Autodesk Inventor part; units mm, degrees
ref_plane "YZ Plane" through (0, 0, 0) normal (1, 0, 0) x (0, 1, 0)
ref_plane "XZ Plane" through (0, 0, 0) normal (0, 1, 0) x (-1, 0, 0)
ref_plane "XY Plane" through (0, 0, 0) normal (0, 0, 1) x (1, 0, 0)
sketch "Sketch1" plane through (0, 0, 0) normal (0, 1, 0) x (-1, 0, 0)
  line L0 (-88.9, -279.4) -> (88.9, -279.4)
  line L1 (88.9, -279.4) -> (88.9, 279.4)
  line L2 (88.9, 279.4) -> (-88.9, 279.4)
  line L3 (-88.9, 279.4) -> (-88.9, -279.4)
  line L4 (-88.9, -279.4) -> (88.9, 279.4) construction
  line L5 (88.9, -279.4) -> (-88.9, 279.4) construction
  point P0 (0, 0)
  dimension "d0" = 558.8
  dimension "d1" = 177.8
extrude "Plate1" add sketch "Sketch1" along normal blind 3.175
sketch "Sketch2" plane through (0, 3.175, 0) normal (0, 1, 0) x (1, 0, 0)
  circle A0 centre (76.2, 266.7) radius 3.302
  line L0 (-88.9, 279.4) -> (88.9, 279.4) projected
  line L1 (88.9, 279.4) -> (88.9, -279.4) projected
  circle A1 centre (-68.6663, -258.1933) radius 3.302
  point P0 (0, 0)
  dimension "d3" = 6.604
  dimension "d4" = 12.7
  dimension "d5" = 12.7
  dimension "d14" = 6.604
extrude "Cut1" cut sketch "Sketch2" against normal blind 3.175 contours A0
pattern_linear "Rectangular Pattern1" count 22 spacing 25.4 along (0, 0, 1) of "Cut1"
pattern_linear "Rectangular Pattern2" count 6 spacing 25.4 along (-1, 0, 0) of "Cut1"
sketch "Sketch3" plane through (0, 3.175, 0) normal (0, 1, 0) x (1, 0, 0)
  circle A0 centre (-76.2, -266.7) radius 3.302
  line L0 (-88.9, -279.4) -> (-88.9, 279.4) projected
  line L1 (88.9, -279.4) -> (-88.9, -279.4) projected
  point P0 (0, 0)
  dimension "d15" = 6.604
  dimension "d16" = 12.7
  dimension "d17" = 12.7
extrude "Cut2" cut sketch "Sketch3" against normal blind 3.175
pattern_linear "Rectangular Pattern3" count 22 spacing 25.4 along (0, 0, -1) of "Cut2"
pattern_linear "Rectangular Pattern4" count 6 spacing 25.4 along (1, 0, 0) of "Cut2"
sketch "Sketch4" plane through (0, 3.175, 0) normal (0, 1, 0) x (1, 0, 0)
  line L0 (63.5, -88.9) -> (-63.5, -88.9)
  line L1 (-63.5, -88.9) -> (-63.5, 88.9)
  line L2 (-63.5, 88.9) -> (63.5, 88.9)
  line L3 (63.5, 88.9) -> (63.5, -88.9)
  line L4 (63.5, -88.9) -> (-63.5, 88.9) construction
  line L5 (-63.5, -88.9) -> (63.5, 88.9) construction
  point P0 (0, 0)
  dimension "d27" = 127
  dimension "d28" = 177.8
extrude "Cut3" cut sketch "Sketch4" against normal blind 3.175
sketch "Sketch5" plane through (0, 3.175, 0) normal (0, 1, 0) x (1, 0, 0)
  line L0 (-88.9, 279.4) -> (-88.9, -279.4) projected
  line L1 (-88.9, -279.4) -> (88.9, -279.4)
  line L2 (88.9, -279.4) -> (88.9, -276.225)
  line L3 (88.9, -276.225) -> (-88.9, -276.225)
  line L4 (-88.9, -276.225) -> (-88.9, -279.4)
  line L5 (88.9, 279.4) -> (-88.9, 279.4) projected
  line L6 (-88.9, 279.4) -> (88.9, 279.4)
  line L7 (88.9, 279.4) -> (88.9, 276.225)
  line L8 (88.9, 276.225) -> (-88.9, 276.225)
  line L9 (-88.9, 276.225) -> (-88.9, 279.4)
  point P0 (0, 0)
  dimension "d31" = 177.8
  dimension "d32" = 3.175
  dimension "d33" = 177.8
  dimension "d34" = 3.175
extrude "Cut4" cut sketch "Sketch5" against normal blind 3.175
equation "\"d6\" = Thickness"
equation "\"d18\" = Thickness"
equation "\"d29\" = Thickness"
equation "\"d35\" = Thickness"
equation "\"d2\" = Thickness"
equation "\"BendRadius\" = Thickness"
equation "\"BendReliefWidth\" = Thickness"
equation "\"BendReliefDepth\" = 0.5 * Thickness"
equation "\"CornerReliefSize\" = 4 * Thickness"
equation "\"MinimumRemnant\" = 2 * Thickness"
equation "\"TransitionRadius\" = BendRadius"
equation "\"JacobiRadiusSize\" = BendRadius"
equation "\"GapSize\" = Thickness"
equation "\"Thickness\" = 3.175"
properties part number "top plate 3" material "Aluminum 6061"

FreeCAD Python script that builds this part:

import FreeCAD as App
import Part
import Sketcher
from FreeCAD import Vector
Q = App.Units.Quantity


def add_polygon(sketch, points):
    """Adds a closed chain of lines whose ends are joined by coincident constraints."""
    first, n = sketch.GeometryCount, len(points)
    for a, b in zip(points, points[1:] + points[:1]):
        sketch.addGeometry(Part.LineSegment(App.Vector(*a, 0), App.Vector(*b, 0)), False)
    for i in range(n):
        sketch.addConstraint(Sketcher.Constraint("Coincident", first + i, 2, first + (i + 1) % n, 1))

doc = App.newDocument("Part")
body = doc.addObject("PartDesign::Body", "Body")

sketch1 = body.newObject("Sketcher::SketchObject", "Sketch")
sketch1.AttachmentSupport = (doc.getObject("XZ_Plane"), [""])
sketch1.MapMode = "FlatFace"
add_polygon(sketch1, [(89, 279), (89, -279), (-89, -279), (-89, 279)])
sketch1.addConstraint(Sketcher.Constraint("Vertical", 0))
sketch1.addConstraint(Sketcher.Constraint("Horizontal", 1))
sketch1.addConstraint(Sketcher.Constraint("Vertical", 2))
sketch1.addConstraint(Sketcher.Constraint("Horizontal", 3))
sketch1.addConstraint(Sketcher.Constraint("Symmetric", 0, 2, 2, 2, -1, 1))
sketch1.addConstraint(Sketcher.Constraint("DistanceX", 1, 2, 1, 1, Q("7 in")))
sketch1.addConstraint(Sketcher.Constraint("DistanceY", 0, 2, 0, 1, Q("22 in")))
pad1 = body.newObject("PartDesign::Pad", "Pad")
pad1.Profile = sketch1
pad1.Length = Q("0.125 in")
pad1.Reversed = True

sketch2 = body.newObject("Sketcher::SketchObject", "Sketch001")
sketch2.AttachmentSupport = (doc.getObject("XZ_Plane"), [""])
sketch2.MapMode = "FlatFace"
sketch2.AttachmentOffset = App.Placement(Vector(0, 0, -0.125 * 25.4), App.Rotation())
sketch2.addGeometry(Part.Circle(Vector(76.2, -266.7, 0), Vector(0, 0, 1), 3.3), False)
sketch2.addConstraint(Sketcher.Constraint("Diameter", 0, Q("0.26 in")))
sketch2.addConstraint(Sketcher.Constraint("DistanceX", -1, 1, 0, 3, Q("3 in")))
sketch2.addConstraint(Sketcher.Constraint("DistanceY", 0, 3, -1, 1, Q("10.5 in")))
pocket1 = body.newObject("PartDesign::Pocket", "Pocket")
pocket1.Profile = sketch2
pocket1.Length = Q("0.125 in")
pocket1.Reversed = True
doc.recompute()

linearpattern = body.newObject("PartDesign::LinearPattern", "LinearPattern")
linearpattern.Originals = [pocket1]
linearpattern.Direction = (doc.getObject("Z_Axis"), [""])
linearpattern.Mode = "offset"
linearpattern.Offset = Q("1 in")
linearpattern.Occurrences = 22
body.Tip = linearpattern
doc.recompute()

linearpattern2 = body.newObject("PartDesign::LinearPattern", "LinearPattern001")
linearpattern2.Originals = [pocket1]
linearpattern2.Direction = (doc.getObject("X_Axis"), [""])
linearpattern2.Mode = "offset"
linearpattern2.Offset = Q("1 in")
linearpattern2.Occurrences = 6
linearpattern2.Reversed = True
body.Tip = linearpattern2

sketch3 = body.newObject("Sketcher::SketchObject", "Sketch002")
sketch3.AttachmentSupport = (doc.getObject("XZ_Plane"), [""])
sketch3.MapMode = "FlatFace"
sketch3.AttachmentOffset = App.Placement(Vector(0, 0, -0.125 * 25.4), App.Rotation())
sketch3.addGeometry(Part.Circle(Vector(-76.2, 266.7, 0), Vector(0, 0, 1), 3.3), False)
sketch3.addConstraint(Sketcher.Constraint("Diameter", 0, Q("0.26 in")))
sketch3.addConstraint(Sketcher.Constraint("DistanceX", 0, 3, -1, 1, Q("3 in")))
sketch3.addConstraint(Sketcher.Constraint("DistanceY", -1, 1, 0, 3, Q("10.5 in")))
pocket2 = body.newObject("PartDesign::Pocket", "Pocket001")
pocket2.Profile = sketch3
pocket2.Length = Q("0.125 in")
pocket2.Reversed = True
doc.recompute()

linearpattern3 = body.newObject("PartDesign::LinearPattern", "LinearPattern002")
linearpattern3.Originals = [pocket2]
linearpattern3.Direction = (doc.getObject("Z_Axis"), [""])
linearpattern3.Mode = "offset"
linearpattern3.Offset = Q("1 in")
linearpattern3.Occurrences = 22
linearpattern3.Reversed = True
body.Tip = linearpattern3
doc.recompute()

linearpattern4 = body.newObject("PartDesign::LinearPattern", "LinearPattern003")
linearpattern4.Originals = [pocket2]
linearpattern4.Direction = (doc.getObject("X_Axis"), [""])
linearpattern4.Mode = "offset"
linearpattern4.Offset = Q("1 in")
linearpattern4.Occurrences = 6
body.Tip = linearpattern4

sketch4 = body.newObject("Sketcher::SketchObject", "Sketch003")
sketch4.AttachmentSupport = (doc.getObject("XZ_Plane"), [""])
sketch4.MapMode = "FlatFace"
sketch4.AttachmentOffset = App.Placement(Vector(0, 0, -0.125 * 25.4), App.Rotation())
add_polygon(sketch4, [(-64, 89), (64, 89), (64, -89), (-64, -89)])
sketch4.addConstraint(Sketcher.Constraint("Horizontal", 0))
sketch4.addConstraint(Sketcher.Constraint("Vertical", 1))
sketch4.addConstraint(Sketcher.Constraint("Horizontal", 2))
sketch4.addConstraint(Sketcher.Constraint("Vertical", 3))
sketch4.addConstraint(Sketcher.Constraint("Symmetric", 0, 2, 2, 2, -1, 1))
sketch4.addConstraint(Sketcher.Constraint("DistanceX", 0, 1, 0, 2, Q("5 in")))
sketch4.addConstraint(Sketcher.Constraint("DistanceY", 1, 2, 1, 1, Q("7 in")))
pocket3 = body.newObject("PartDesign::Pocket", "Pocket002")
pocket3.Profile = sketch4
pocket3.Length = Q("0.125 in")
pocket3.Reversed = True

sketch5 = body.newObject("Sketcher::SketchObject", "Sketch004")
sketch5.AttachmentSupport = (doc.getObject("XZ_Plane"), [""])
sketch5.MapMode = "FlatFace"
sketch5.AttachmentOffset = App.Placement(Vector(0, 0, -0.125 * 25.4), App.Rotation())
add_polygon(sketch5, [(88.9, -279.4), (-88.9, -279.4), (-88.9, -276.2), (88.9, -276.2)])
add_polygon(sketch5, [(88.9, 276.2), (-88.9, 276.2), (-88.9, 279.4), (88.9, 279.4)])
sketch5.addConstraint(Sketcher.Constraint("Horizontal", 0))
sketch5.addConstraint(Sketcher.Constraint("Vertical", 1))
sketch5.addConstraint(Sketcher.Constraint("Horizontal", 2))
sketch5.addConstraint(Sketcher.Constraint("Vertical", 3))
sketch5.addConstraint(Sketcher.Constraint("Horizontal", 4))
sketch5.addConstraint(Sketcher.Constraint("Vertical", 5))
sketch5.addConstraint(Sketcher.Constraint("Horizontal", 6))
sketch5.addConstraint(Sketcher.Constraint("Vertical", 7))
sketch5.addConstraint(Sketcher.Constraint("Symmetric", 2, 2, 4, 2, -1, 1))
sketch5.addConstraint(Sketcher.Constraint("Symmetric", 0, 2, 6, 2, -1, 1))
sketch5.addConstraint(Sketcher.Constraint("Vertical", 1, 2, 4, 2))
sketch5.addConstraint(Sketcher.Constraint("DistanceX", 0, 2, 0, 1, Q("7 in")))
sketch5.addConstraint(Sketcher.Constraint("DistanceY", 1, 1, 1, 2, Q("0.125 in")))
sketch5.addConstraint(Sketcher.Constraint("DistanceY", 0, 2, -1, 1, Q("11 in")))
pocket4 = body.newObject("PartDesign::Pocket", "Pocket003")
pocket4.Profile = sketch5
pocket4.Length = Q("0.125 in")
pocket4.Reversed = True

doc.recompute()
